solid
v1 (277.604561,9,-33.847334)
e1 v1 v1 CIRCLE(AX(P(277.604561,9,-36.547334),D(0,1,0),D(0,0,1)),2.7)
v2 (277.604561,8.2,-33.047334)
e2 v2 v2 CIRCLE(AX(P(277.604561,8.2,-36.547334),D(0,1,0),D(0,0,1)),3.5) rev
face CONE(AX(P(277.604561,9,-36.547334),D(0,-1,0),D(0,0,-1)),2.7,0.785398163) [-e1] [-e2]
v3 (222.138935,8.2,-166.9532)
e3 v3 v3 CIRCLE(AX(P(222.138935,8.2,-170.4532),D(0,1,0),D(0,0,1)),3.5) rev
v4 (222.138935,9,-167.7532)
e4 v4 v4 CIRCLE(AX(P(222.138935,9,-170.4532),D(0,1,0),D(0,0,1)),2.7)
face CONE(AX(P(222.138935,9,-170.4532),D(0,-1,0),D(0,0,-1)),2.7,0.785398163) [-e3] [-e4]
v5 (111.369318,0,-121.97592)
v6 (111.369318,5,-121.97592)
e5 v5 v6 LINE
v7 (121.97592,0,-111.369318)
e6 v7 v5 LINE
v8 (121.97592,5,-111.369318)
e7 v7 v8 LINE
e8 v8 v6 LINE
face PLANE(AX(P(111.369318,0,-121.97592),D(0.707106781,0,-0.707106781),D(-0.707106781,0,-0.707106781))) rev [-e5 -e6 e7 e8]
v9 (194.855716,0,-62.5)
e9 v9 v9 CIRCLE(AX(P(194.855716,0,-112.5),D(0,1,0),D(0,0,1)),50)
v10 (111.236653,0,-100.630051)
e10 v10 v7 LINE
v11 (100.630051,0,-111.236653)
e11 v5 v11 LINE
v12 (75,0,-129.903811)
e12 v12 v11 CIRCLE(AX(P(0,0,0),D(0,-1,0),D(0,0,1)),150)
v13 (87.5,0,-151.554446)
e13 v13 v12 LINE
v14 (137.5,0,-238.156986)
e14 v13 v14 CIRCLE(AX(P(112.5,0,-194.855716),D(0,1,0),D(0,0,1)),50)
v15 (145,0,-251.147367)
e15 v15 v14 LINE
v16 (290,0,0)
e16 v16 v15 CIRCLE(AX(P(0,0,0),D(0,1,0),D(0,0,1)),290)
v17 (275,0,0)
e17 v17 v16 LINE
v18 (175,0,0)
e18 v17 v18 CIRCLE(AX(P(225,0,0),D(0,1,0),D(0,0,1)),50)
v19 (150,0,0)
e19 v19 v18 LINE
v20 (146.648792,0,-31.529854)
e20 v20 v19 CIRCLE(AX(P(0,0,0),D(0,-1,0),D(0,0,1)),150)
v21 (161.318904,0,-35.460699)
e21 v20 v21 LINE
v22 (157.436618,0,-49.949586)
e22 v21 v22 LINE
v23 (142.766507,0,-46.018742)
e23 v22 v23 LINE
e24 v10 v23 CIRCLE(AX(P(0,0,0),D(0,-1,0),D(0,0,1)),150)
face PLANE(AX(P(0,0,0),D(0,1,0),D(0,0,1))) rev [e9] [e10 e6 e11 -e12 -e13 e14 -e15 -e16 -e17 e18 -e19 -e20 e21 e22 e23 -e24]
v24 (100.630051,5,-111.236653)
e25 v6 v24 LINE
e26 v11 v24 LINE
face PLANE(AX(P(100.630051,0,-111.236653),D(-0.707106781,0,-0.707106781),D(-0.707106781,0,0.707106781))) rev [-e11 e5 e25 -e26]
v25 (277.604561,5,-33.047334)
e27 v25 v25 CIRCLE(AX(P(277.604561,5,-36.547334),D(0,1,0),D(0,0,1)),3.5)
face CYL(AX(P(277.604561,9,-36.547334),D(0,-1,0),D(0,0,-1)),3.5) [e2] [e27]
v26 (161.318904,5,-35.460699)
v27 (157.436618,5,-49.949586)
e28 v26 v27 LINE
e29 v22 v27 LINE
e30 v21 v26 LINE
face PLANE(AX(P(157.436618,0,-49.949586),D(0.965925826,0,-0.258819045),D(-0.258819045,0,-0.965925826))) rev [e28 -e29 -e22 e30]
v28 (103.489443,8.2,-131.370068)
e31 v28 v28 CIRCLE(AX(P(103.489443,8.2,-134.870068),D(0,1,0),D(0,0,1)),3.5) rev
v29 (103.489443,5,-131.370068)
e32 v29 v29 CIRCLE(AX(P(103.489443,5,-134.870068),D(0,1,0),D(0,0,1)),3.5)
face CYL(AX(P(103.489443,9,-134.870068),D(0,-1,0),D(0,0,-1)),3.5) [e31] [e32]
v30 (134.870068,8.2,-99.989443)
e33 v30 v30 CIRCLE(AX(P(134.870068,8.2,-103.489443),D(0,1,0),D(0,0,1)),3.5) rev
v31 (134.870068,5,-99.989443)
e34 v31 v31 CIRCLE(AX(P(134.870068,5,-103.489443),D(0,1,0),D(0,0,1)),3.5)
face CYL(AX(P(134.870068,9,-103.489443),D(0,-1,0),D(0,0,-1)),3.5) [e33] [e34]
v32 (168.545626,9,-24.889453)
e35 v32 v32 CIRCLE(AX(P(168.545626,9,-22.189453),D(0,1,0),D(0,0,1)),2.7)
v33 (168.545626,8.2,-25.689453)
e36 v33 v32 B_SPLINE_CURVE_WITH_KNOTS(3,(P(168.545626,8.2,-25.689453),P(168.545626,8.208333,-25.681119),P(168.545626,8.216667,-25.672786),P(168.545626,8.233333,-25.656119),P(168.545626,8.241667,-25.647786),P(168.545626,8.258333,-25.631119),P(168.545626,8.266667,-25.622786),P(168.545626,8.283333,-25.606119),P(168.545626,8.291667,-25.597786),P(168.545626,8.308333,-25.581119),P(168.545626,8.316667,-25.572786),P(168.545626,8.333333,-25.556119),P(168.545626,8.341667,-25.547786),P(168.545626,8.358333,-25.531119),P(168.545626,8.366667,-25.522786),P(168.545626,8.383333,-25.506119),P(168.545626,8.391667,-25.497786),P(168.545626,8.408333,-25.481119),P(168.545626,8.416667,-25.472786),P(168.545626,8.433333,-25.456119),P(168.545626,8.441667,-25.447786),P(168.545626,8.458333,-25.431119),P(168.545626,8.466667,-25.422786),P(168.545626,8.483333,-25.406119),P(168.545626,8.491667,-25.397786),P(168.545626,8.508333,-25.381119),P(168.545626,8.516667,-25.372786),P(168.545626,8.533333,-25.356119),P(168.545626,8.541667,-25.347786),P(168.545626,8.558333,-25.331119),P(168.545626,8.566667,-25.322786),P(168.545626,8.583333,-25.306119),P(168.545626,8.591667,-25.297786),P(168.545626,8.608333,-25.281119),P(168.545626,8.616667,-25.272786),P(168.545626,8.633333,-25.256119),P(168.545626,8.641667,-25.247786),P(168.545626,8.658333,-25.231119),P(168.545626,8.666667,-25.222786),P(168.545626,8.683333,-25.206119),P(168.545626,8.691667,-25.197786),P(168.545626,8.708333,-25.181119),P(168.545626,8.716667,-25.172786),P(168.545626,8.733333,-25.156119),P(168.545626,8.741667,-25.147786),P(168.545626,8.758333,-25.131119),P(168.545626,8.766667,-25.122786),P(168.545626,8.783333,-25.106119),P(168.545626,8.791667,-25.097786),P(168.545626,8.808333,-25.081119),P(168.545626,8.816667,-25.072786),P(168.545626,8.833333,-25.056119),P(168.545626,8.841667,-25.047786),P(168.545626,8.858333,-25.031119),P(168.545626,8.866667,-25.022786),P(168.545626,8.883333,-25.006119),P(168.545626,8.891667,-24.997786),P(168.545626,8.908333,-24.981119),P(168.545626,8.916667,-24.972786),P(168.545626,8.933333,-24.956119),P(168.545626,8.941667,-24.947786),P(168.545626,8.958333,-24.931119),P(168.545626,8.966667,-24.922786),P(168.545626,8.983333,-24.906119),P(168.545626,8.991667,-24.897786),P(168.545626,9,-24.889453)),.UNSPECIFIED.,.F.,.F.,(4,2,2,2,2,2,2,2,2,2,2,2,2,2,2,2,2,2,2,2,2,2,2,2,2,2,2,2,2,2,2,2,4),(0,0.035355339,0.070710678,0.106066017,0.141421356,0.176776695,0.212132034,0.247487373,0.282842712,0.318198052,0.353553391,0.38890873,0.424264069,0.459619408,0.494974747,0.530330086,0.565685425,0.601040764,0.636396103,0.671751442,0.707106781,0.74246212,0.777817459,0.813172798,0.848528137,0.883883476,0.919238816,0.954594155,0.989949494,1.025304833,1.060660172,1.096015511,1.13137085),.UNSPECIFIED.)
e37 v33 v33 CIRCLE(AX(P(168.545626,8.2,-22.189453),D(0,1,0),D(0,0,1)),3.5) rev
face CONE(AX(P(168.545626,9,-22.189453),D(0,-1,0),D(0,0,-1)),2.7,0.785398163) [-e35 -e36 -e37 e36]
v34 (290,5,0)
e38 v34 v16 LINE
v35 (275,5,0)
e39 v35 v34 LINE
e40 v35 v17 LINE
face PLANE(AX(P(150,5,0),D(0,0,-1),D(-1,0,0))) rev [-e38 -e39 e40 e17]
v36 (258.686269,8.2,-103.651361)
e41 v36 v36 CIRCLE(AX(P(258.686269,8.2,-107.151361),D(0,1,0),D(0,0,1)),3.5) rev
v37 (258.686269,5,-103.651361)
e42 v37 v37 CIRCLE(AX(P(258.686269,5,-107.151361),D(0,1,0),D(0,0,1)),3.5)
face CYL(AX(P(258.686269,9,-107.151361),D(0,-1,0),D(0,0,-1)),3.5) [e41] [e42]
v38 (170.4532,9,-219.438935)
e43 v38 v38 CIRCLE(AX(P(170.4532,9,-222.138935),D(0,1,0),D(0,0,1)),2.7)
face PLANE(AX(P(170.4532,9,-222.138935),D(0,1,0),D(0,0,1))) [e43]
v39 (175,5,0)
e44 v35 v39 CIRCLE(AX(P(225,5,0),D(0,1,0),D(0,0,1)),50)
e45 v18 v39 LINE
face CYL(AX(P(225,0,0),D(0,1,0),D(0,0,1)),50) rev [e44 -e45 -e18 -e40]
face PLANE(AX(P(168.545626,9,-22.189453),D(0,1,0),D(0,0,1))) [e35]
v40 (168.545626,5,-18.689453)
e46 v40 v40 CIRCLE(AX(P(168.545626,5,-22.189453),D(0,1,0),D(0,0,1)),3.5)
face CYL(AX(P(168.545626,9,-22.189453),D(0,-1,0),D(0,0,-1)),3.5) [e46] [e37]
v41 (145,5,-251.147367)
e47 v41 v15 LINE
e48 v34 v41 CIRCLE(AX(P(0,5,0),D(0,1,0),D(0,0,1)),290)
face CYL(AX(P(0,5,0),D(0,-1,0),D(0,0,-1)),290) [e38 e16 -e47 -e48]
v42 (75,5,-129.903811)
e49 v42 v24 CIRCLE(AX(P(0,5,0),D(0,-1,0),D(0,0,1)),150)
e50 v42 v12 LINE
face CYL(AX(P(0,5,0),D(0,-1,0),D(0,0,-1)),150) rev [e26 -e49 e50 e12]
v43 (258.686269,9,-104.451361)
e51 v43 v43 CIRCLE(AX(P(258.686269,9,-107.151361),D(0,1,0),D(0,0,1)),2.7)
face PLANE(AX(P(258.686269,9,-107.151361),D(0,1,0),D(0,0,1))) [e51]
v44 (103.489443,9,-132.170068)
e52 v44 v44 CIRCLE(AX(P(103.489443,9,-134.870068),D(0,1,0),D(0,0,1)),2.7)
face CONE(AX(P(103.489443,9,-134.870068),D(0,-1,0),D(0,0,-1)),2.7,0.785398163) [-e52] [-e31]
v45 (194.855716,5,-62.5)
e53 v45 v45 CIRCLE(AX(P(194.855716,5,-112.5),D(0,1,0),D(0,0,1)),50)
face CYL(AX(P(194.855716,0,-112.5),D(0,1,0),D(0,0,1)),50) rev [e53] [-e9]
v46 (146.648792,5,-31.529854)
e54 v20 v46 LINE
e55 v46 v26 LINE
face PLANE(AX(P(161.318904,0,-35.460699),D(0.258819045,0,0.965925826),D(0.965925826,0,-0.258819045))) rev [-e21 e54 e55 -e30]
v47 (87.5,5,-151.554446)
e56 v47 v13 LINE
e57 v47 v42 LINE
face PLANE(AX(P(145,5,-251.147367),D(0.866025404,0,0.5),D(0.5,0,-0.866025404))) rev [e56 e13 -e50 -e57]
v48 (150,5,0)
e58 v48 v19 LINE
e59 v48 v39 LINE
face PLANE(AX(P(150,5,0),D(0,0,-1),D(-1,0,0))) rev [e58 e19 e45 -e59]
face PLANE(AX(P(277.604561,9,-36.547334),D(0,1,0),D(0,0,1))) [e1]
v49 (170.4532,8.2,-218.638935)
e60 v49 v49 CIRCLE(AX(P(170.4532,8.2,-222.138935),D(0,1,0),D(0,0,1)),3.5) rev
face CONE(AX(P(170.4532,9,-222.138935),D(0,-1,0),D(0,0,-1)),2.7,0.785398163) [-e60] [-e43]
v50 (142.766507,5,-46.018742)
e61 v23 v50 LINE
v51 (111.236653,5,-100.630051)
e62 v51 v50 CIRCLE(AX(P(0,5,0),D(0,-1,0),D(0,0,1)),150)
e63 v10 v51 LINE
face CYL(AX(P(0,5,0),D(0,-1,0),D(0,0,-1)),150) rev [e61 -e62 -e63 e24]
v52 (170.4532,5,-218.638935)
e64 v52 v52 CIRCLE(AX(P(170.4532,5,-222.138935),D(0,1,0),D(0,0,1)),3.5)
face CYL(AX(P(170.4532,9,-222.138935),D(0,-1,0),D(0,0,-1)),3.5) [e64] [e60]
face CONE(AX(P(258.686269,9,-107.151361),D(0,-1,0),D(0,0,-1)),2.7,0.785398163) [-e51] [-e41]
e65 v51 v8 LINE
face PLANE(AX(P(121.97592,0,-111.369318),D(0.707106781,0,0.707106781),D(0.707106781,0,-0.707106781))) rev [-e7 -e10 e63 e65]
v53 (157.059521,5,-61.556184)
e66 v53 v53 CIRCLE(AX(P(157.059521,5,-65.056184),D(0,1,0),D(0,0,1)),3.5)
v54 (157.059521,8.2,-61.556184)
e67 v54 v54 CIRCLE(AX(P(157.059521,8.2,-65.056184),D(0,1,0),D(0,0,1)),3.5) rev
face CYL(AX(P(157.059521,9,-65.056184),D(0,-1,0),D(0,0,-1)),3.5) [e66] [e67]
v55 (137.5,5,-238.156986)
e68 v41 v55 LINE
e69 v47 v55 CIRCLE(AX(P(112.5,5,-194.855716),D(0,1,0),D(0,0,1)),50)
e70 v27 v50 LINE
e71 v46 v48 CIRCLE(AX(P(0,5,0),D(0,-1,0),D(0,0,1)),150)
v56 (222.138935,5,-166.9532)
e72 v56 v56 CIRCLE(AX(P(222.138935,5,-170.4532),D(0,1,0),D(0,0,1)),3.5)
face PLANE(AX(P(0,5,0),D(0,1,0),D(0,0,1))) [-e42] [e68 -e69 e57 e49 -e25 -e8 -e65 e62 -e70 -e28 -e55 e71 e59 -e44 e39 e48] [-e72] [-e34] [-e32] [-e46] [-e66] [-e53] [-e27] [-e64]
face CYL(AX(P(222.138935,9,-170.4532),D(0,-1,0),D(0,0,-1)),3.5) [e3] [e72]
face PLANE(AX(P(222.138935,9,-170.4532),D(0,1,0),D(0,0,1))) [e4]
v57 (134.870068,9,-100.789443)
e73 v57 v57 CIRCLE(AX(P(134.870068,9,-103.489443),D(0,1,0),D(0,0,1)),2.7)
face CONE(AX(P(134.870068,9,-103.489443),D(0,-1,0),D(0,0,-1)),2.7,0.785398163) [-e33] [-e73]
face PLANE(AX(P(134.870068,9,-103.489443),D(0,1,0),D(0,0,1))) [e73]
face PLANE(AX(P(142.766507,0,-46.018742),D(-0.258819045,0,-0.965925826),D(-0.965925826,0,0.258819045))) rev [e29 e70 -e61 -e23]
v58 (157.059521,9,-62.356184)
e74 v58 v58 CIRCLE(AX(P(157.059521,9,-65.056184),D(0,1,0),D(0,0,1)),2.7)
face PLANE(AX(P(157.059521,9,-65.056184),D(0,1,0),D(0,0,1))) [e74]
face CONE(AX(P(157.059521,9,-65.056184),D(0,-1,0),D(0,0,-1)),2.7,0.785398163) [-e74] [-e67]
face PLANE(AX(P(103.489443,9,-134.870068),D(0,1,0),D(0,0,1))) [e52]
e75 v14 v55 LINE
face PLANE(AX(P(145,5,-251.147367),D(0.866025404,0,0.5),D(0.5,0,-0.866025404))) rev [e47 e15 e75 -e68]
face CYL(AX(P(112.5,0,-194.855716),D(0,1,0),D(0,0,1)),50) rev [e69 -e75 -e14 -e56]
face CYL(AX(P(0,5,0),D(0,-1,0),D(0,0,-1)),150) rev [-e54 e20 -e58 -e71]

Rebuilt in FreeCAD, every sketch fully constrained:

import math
import FreeCAD as App
import Part
import Sketcher
Q = App.Units.Quantity


def edges_at(feature, points):
    """Names of the edges that pass closest to the given points."""
    edges = feature.Shape.Edges
    near = lambda p: min(range(len(edges)), key=lambda i: edges[i].distToShape(Part.Vertex(*p))[0])
    return sorted({f"Edge{near(p) + 1}" for p in points})

doc = App.newDocument("Part")
body = doc.addObject("PartDesign::Body", "Body")

sketch1 = body.newObject("Sketcher::SketchObject", "Sketch")
sketch1.AttachmentSupport = (doc.getObject("XZ_Plane"), [""])
sketch1.MapMode = "FlatFace"
sketch1.addGeometry([
    Part.LineSegment(App.Vector(150, 0, 0), App.Vector(290, 0, 0)),
    Part.ArcOfCircle(Part.Circle(App.Vector(0, 0, 0), App.Vector(0, 0, 1), 290), math.radians(-60), math.radians(0)),
    Part.LineSegment(App.Vector(145, -251, 0), App.Vector(75, -130, 0)),
    Part.ArcOfCircle(Part.Circle(App.Vector(0, 0, 0), App.Vector(0, 0, 1), 150), math.radians(-60), math.radians(0)),
], False)
sketch1.addConstraint([
    Sketcher.Constraint("Coincident", 0, 2, 1, 2),
    Sketcher.Constraint("Coincident", 1, 1, 2, 1),
    Sketcher.Constraint("Coincident", 2, 2, 3, 1),
    Sketcher.Constraint("Coincident", 3, 2, 0, 1),
    Sketcher.Constraint("Horizontal", 0),
    Sketcher.Constraint("Coincident", 1, 3, -1, 1),
    Sketcher.Constraint("Coincident", 3, 3, -1, 1),
    Sketcher.Constraint("PointOnObject", 0, 2, -1),
    Sketcher.Constraint("Radius", 1, Q("290 mm")),
    Sketcher.Constraint("Radius", 3, Q("150 mm")),
    Sketcher.Constraint("Angle", 2, Q("120 deg")),
    Sketcher.Constraint("DistanceX", -1, 1, 1, 1, Q("145 mm")),
])
pad1 = body.newObject("PartDesign::Pad", "Pad")
pad1.Profile = sketch1
pad1.Length = 5
pad1.Reversed = True

sketch2 = body.newObject("Sketcher::SketchObject", "Sketch001")
sketch2.AttachmentSupport = (doc.getObject("XZ_Plane"), [""])
sketch2.MapMode = "FlatFace"
sketch2.AttachmentOffset = App.Placement(App.Vector(0, 0, -5), App.Rotation())
sketch2.addGeometry([
    Part.Circle(App.Vector(112, -195, 0), App.Vector(0, 0, 1), 50),
    Part.Circle(App.Vector(195, -112, 0), App.Vector(0, 0, 1), 50),
    Part.Circle(App.Vector(225, 0, 0), App.Vector(0, 0, 1), 50),
], False)
sketch2.addConstraint([
    Sketcher.Constraint("Equal", 0, 1),
    Sketcher.Constraint("Equal", 1, 2),
    Sketcher.Constraint("PointOnObject", 2, 3, -1),
    Sketcher.Constraint("Diameter", 0, Q("100 mm")),
    Sketcher.Constraint("DistanceX", -1, 1, 2, 3, Q("225 mm")),
    Sketcher.Constraint("DistanceX", -1, 1, 0, 3, Q("112.5 mm")),
    Sketcher.Constraint("DistanceY", 1, 3, -1, 1, Q("112.5 mm")),
    Sketcher.Constraint("DistanceY", 0, 3, -1, 1, Q("194.855716 mm")),
    Sketcher.Constraint("DistanceX", -1, 1, 1, 3, Q("194.855716 mm")),
])
pocket1 = body.newObject("PartDesign::Pocket", "Pocket")
pocket1.Profile = sketch2
pocket1.Type = "ThroughAll"
pocket1.Reversed = True

sketch3 = body.newObject("Sketcher::SketchObject", "Sketch002")
sketch3.AttachmentSupport = (doc.getObject("XZ_Plane"), [""])
sketch3.MapMode = "FlatFace"
sketch3.AttachmentOffset = App.Placement(App.Vector(0, 0, -5), App.Rotation())
sketch3.addGeometry([
    Part.Circle(App.Vector(168.5, -22.2, 0), App.Vector(0, 0, 1), 3.5),
    Part.Circle(App.Vector(277.6, -36.5, 0), App.Vector(0, 0, 1), 3.5),
    Part.Circle(App.Vector(157.1, -65.1, 0), App.Vector(0, 0, 1), 3.5),
    Part.Circle(App.Vector(134.9, -103.5, 0), App.Vector(0, 0, 1), 3.5),
    Part.Circle(App.Vector(103.5, -134.9, 0), App.Vector(0, 0, 1), 3.5),
    Part.Circle(App.Vector(170.5, -222.1, 0), App.Vector(0, 0, 1), 3.5),
    Part.Circle(App.Vector(222.1, -170.5, 0), App.Vector(0, 0, 1), 3.5),
    Part.Circle(App.Vector(258.7, -107.2, 0), App.Vector(0, 0, 1), 3.5),
], False)
sketch3.addConstraint([
    Sketcher.Constraint("Equal", 0, 1),
    Sketcher.Constraint("Equal", 1, 2),
    Sketcher.Constraint("Equal", 2, 3),
    Sketcher.Constraint("Equal", 3, 4),
    Sketcher.Constraint("Equal", 4, 5),
    Sketcher.Constraint("Equal", 5, 6),
    Sketcher.Constraint("Equal", 6, 7),
    Sketcher.Constraint("Diameter", 0, Q("7 mm")),
    Sketcher.Constraint("DistanceX", -1, 1, 5, 3, Q("170.4532 mm")),
    Sketcher.Constraint("DistanceY", 6, 3, -1, 1, Q("170.4532 mm")),
    Sketcher.Constraint("DistanceY", 5, 3, 1, 3, Q("185.591601 mm")),
    Sketcher.Constraint("DistanceX", 3, 3, 7, 3, Q("123.816201 mm")),
    Sketcher.Constraint("DistanceX", -1, 1, 1, 3, Q("277.604561 mm")),
    Sketcher.Constraint("DistanceX", -1, 1, 2, 3, Q("157.059521 mm")),
    Sketcher.Constraint("DistanceX", -1, 1, 7, 3, Q("258.686269 mm")),
    Sketcher.Constraint("DistanceY", 7, 3, -1, 1, Q("107.151361 mm")),
    Sketcher.Constraint("DistanceY", 1, 3, 0, 3, Q("14.357881 mm")),
    Sketcher.Constraint("DistanceY", 2, 3, 0, 3, Q("42.866731 mm")),
    Sketcher.Constraint("DistanceY", 3, 3, 2, 3, Q("38.433259 mm")),
    Sketcher.Constraint("DistanceX", 3, 3, 0, 3, Q("33.675559 mm")),
    Sketcher.Constraint("DistanceX", 4, 3, 1, 3, Q("174.115118 mm")),
    Sketcher.Constraint("DistanceY", 7, 3, 3, 3, Q("3.661918 mm")),
    Sketcher.Constraint("DistanceY", 4, 3, -1, 1, Q("134.870068 mm")),
    Sketcher.Constraint("DistanceX", -1, 1, 6, 3, Q("222.138935 mm")),
])
pad2 = body.newObject("PartDesign::Pad", "Pad001")
pad2.Profile = sketch3
pad2.Length = 4
pad2.Reversed = True
doc.recompute()

chamfer = body.newObject("PartDesign::Chamfer", "Chamfer")
chamfer.Base = (pad2, edges_at(pad2, [
    (168.546, 9, -25.689),
    (277.605, 9, -40.047),
    (157.06, 9, -68.556),
    (134.87, 9, -106.989),
    (103.489, 9, -138.37),
    (170.453, 9, -225.639),
    (222.139, 9, -173.953),
    (258.686, 9, -110.651),
]))
chamfer.Size = 0.8

sketch4 = body.newObject("Sketcher::SketchObject", "Sketch003")
sketch4.AttachmentSupport = (doc.getObject("XZ_Plane"), [""])
sketch4.MapMode = "FlatFace"
sketch4.AttachmentOffset = App.Placement(App.Vector(0, 0, -5), App.Rotation())
sketch4.addGeometry([
    Part.LineSegment(App.Vector(111, -122, 0), App.Vector(101, -111, 0)),
    Part.ArcOfCircle(Part.Circle(App.Vector(0, 0, 0), App.Vector(0, 0, 1), 150), math.radians(-47.87), math.radians(-42.13)),
    Part.LineSegment(App.Vector(111, -101, 0), App.Vector(122, -111, 0)),
    Part.LineSegment(App.Vector(122, -111, 0), App.Vector(111, -122, 0)),
    Part.LineSegment(App.Vector(157, -50, 0), App.Vector(143, -46, 0)),
    Part.ArcOfCircle(Part.Circle(App.Vector(0, 0, 0), App.Vector(0, 0, 1), 150), math.radians(-17.87), math.radians(-12.13)),
    Part.LineSegment(App.Vector(147, -32, 0), App.Vector(161, -35, 0)),
    Part.LineSegment(App.Vector(161, -35, 0), App.Vector(157, -50, 0)),
], False)
sketch4.addConstraint([
    Sketcher.Constraint("Coincident", 0, 2, 1, 1),
    Sketcher.Constraint("Coincident", 1, 2, 2, 1),
    Sketcher.Constraint("Coincident", 2, 2, 3, 1),
    Sketcher.Constraint("Coincident", 3, 2, 0, 1),
    Sketcher.Constraint("Coincident", 4, 2, 5, 1),
    Sketcher.Constraint("Coincident", 5, 2, 6, 1),
    Sketcher.Constraint("Coincident", 6, 2, 7, 1),
    Sketcher.Constraint("Coincident", 7, 2, 4, 1),
    Sketcher.Constraint("Coincident", 1, 3, -1, 1),
    Sketcher.Constraint("Coincident", 5, 3, -1, 1),
    Sketcher.Constraint("Equal", 1, 5),
    Sketcher.Constraint("Parallel", 0, 2),
    Sketcher.Constraint("Perpendicular", 2, 3),
    Sketcher.Constraint("Parallel", 4, 6),
    Sketcher.Constraint("Perpendicular", 6, 7),
    Sketcher.Constraint("Equal", 0, 2),
    Sketcher.Constraint("Equal", 2, 4),
    Sketcher.Constraint("Equal", 4, 6),
    Sketcher.Constraint("Equal", 3, 7),
    Sketcher.Constraint("Radius", 1, Q("150 mm")),
    Sketcher.Constraint("Angle", 0, Q("135 deg")),
    Sketcher.Constraint("Angle", 4, Q("165 deg")),
    Sketcher.Constraint("Distance", 3, Q("15 mm")),
    Sketcher.Constraint("DistanceY", 6, 2, -1, 1, Q("35.460699 mm")),
])
pocket2 = body.newObject("PartDesign::Pocket", "Pocket001")
pocket2.Profile = sketch4
pocket2.Type = "ThroughAll"
pocket2.Reversed = True

doc.recompute()
